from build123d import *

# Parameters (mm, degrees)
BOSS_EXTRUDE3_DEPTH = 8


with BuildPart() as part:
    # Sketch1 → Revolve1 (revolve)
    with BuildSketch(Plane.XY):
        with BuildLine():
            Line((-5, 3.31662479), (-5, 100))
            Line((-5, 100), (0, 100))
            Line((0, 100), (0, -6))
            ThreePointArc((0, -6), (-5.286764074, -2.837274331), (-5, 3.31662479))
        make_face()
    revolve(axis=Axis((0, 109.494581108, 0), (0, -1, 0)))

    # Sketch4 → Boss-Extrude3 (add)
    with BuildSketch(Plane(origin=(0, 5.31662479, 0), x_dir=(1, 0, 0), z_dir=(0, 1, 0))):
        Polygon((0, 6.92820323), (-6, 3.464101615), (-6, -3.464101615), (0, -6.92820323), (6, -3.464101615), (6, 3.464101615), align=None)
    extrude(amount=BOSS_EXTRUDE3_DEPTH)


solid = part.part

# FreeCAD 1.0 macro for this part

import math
import FreeCAD as App
import Part
import Sketcher
from FreeCAD import Vector
Q = App.Units.Quantity

doc = App.newDocument("Part")
body = doc.addObject("PartDesign::Body", "Body")

# Sketch on XY plane
sketch1 = body.newObject("Sketcher::SketchObject", "Sketch")
sketch1.AttachmentSupport = (doc.getObject("XY_Plane"), [""])
sketch1.MapMode = "FlatFace"
sketch1.addGeometry([
    Part.LineSegment(Vector(-5, 100, 0), Vector(-5, 3.316625, 0)),
    Part.ArcOfCircle(Part.Circle(Vector(0, 0, 0), Vector(0, 0, 1), 6), math.radians(146.44269), math.radians(270)),
    Part.LineSegment(Vector(0, -6, 0), Vector(0, 100, 0)),
    Part.LineSegment(Vector(0, 100, 0), Vector(-5, 100, 0)),
], False)
sketch1.addConstraint([
    Sketcher.Constraint("Coincident", 0, 2, 1, 1),
    Sketcher.Constraint("Coincident", 1, 2, 2, 1),
    Sketcher.Constraint("Coincident", 2, 2, 3, 1),
    Sketcher.Constraint("Coincident", 3, 2, 0, 1),
    Sketcher.Constraint("Vertical", 0),
    Sketcher.Constraint("Vertical", 2),
    Sketcher.Constraint("Horizontal", 3),
    Sketcher.Constraint("Coincident", 1, 3, -1, 1),
    Sketcher.Constraint("PointOnObject", 1, 2, -2),
    Sketcher.Constraint("Radius", 1, 6.0),
    Sketcher.Constraint("DistanceX", 3, 2, 3, 1, 5.0),
    Sketcher.Constraint("DistanceY", 2, 1, 2, 2, 106.0),
])
revolution = body.newObject("PartDesign::Revolution", "Revolution")
revolution.Profile = sketch1
revolution.ReferenceAxis = (sketch1, ["V_Axis"])
revolution.Angle = 360

# Sketch on XZ plane
sketch2 = body.newObject("Sketcher::SketchObject", "Sketch001")
sketch2.AttachmentSupport = (doc.getObject("XZ_Plane"), [""])
sketch2.MapMode = "FlatFace"
sketch2.AttachmentOffset = App.Placement(Vector(0, 0, -5.316625), App.Rotation())
sketch2.addGeometry([
    Part.LineSegment(Vector(0, -6.928203, 0), Vector(-6, -3.464102, 0)),  # 0
    Part.LineSegment(Vector(-6, -3.464102, 0), Vector(-6, 3.464102, 0)),  # 1
    Part.LineSegment(Vector(-6, 3.464102, 0), Vector(0, 6.928203, 0)),  # 2
    Part.LineSegment(Vector(0, 6.928203, 0), Vector(6, 3.464102, 0)),  # 3
    Part.LineSegment(Vector(6, 3.464102, 0), Vector(6, -3.464102, 0)),  # 4
    Part.LineSegment(Vector(6, -3.464102, 0), Vector(0, -6.928203, 0)),  # 5
], False)
sketch2.addConstraint([
    Sketcher.Constraint("Coincident", 0, 2, 1, 1),
    Sketcher.Constraint("Coincident", 1, 2, 2, 1),
    Sketcher.Constraint("Coincident", 2, 2, 3, 1),
    Sketcher.Constraint("Coincident", 3, 2, 4, 1),
    Sketcher.Constraint("Coincident", 4, 2, 5, 1),
    Sketcher.Constraint("Coincident", 5, 2, 0, 1),
    Sketcher.Constraint("Vertical", 1),
    Sketcher.Constraint("Vertical", 4),
    Sketcher.Constraint("Symmetric", 0, 2, 3, 2, -1, 1),
    Sketcher.Constraint("Symmetric", 2, 2, 5, 2, -1, 1),
    Sketcher.Constraint("PointOnObject", 2, 2, -2),
    Sketcher.Constraint("Parallel", 2, 5),
    Sketcher.Constraint("Horizontal", 1, 2, 3, 2),
    Sketcher.Constraint("Angle", 0, Q("150 deg")),
    Sketcher.Constraint("DistanceX", 0, 2, -1, 1, 6.0),
    Sketcher.Constraint("DistanceY", 0, 2, -1, 1, 3.464102),
])
pad1 = body.newObject("PartDesign::Pad", "Pad")
pad1.Profile = sketch2
pad1.Length = 8
pad1.Reversed = True

doc.recompute()
